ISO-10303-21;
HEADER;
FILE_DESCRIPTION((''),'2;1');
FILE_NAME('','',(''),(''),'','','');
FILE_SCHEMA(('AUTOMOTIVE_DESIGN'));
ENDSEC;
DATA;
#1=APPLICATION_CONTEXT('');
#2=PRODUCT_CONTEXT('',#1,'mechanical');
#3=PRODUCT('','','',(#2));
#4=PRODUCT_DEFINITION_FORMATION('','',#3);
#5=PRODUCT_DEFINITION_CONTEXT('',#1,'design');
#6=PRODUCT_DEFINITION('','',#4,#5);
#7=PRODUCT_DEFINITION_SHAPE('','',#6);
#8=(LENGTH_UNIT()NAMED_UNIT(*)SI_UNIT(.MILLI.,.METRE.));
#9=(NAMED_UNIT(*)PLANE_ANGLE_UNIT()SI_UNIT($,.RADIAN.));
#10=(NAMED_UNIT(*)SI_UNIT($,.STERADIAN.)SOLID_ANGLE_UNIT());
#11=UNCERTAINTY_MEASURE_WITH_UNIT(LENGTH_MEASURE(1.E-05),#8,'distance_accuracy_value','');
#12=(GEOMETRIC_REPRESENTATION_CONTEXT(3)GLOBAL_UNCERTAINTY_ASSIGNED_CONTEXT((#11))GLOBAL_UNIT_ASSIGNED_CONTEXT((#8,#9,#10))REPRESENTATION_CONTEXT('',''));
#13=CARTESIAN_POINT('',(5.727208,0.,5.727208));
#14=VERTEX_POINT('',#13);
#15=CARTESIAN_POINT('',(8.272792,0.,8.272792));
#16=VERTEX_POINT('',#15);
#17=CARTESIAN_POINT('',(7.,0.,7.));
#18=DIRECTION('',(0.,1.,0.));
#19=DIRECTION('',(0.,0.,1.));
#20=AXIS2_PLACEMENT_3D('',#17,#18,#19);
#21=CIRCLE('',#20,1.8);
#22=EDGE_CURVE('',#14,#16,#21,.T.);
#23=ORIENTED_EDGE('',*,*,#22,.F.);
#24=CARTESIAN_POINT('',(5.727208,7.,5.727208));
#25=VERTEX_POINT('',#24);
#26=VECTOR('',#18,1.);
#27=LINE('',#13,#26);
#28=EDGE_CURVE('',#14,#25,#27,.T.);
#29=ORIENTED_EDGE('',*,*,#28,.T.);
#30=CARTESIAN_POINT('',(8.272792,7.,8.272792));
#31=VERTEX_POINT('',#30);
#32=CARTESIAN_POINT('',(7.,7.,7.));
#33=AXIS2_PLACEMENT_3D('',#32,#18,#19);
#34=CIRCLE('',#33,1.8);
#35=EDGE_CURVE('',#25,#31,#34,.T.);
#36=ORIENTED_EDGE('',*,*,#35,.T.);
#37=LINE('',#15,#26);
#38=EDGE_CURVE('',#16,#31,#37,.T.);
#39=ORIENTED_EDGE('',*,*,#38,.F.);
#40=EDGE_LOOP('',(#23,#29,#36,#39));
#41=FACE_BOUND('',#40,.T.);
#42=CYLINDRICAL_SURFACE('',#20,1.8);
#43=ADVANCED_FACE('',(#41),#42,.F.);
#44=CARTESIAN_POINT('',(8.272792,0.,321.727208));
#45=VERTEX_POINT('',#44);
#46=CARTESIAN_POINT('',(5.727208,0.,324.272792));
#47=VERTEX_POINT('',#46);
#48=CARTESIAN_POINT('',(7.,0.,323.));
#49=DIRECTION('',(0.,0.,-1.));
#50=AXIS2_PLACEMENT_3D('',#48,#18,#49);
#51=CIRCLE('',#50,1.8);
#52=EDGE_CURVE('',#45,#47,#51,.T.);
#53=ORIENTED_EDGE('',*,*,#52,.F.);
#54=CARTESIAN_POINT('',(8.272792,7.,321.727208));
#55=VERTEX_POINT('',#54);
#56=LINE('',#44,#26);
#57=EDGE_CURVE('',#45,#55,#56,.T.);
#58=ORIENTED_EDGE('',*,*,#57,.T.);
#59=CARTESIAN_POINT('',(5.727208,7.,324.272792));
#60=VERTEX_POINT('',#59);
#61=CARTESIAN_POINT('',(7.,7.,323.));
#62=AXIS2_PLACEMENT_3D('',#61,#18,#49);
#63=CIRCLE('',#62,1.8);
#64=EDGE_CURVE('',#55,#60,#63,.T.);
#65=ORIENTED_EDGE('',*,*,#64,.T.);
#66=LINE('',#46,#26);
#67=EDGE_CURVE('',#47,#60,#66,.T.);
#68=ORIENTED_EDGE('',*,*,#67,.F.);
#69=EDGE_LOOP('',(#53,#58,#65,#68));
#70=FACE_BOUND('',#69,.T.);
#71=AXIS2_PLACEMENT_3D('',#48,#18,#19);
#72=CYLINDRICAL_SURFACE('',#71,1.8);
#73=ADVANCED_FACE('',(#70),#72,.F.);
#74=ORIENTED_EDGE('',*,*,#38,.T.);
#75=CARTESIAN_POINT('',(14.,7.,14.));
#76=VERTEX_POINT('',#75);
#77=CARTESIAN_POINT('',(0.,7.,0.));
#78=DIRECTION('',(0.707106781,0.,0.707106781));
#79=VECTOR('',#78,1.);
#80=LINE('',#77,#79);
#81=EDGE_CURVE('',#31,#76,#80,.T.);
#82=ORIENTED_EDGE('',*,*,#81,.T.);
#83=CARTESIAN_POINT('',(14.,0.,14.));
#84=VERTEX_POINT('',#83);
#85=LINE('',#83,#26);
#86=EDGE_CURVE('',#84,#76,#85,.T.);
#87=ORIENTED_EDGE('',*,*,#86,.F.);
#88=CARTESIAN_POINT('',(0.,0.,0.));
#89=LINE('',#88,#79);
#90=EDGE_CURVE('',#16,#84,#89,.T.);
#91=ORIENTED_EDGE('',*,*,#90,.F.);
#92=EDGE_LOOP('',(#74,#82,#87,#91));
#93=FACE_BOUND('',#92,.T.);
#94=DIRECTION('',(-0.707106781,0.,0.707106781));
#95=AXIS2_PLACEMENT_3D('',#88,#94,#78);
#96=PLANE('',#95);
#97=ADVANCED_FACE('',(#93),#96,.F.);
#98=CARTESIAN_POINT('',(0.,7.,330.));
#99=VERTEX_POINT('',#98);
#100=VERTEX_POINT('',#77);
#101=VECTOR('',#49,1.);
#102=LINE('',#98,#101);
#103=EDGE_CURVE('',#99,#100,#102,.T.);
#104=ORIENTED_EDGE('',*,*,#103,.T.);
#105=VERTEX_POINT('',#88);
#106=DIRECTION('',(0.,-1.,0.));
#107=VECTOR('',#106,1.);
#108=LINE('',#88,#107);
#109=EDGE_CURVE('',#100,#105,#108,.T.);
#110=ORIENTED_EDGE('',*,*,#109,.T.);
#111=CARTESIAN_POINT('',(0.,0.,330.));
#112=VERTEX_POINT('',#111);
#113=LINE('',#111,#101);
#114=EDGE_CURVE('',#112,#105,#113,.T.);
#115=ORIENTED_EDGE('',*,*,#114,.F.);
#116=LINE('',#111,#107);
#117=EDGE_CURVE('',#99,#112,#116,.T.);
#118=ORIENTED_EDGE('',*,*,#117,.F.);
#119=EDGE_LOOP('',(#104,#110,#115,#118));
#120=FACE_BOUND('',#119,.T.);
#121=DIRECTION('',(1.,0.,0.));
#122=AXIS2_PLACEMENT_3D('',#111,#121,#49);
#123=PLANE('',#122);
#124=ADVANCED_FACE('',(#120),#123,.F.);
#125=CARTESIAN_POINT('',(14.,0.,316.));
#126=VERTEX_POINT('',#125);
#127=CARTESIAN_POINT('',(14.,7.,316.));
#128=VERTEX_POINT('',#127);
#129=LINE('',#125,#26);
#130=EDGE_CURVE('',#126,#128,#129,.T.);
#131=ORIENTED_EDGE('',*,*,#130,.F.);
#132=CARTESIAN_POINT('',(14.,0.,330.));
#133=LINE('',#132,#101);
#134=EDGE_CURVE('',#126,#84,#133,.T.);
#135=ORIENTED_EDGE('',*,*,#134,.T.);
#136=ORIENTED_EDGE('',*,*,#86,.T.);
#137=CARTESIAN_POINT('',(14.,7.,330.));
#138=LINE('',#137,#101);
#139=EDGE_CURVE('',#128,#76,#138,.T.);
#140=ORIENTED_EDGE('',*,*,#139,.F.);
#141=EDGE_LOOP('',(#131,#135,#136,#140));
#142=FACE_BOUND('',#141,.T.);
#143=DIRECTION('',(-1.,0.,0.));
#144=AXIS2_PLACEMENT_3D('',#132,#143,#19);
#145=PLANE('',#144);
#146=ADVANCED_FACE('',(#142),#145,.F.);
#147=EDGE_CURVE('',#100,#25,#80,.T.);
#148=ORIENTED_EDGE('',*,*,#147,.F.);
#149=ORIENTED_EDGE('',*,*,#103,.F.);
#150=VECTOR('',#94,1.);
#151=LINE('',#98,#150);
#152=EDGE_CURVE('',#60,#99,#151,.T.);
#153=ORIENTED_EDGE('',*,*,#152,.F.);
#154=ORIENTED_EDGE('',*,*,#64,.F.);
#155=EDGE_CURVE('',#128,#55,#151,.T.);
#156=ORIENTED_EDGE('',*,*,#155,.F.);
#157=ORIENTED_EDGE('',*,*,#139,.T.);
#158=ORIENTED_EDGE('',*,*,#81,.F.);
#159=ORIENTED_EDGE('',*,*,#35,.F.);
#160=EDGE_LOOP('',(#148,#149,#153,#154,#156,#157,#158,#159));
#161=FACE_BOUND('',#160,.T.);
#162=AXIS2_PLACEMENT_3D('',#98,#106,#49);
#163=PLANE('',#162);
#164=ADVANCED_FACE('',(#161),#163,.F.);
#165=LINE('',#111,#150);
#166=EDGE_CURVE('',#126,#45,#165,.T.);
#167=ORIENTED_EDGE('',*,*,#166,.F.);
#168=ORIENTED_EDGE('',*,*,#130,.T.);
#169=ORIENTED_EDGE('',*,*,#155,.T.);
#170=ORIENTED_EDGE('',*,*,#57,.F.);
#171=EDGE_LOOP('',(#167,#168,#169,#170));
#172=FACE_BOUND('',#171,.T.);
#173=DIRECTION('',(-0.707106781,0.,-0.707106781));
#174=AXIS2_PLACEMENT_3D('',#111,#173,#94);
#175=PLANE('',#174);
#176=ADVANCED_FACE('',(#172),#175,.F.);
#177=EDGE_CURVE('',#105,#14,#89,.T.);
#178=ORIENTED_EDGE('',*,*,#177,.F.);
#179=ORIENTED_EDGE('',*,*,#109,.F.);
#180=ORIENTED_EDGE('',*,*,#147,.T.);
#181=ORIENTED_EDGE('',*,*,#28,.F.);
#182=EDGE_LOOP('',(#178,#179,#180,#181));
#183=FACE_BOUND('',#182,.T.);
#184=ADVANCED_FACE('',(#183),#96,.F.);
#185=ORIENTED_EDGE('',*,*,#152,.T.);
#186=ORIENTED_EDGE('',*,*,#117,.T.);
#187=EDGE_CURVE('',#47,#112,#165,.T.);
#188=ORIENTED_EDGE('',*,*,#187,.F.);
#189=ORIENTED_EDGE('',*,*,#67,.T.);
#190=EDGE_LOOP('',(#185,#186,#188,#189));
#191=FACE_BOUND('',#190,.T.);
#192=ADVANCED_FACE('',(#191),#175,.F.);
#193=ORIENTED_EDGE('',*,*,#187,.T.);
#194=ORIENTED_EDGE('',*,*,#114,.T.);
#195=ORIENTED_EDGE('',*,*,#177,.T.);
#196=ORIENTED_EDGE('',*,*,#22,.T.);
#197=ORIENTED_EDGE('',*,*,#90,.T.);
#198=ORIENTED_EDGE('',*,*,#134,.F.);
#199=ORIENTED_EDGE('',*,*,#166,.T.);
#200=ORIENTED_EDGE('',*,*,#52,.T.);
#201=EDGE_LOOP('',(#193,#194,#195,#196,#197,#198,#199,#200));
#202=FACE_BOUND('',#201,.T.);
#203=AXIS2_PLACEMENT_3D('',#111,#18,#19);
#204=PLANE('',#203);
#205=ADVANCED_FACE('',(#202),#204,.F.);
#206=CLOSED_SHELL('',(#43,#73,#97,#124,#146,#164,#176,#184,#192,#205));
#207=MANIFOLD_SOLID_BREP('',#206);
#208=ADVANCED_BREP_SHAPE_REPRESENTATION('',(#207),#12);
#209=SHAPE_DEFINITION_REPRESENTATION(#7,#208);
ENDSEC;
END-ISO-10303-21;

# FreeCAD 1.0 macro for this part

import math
import FreeCAD as App
import Part
import Sketcher


def add_polygon(sketch, points):
    """Adds a closed chain of lines whose ends are joined by coincident constraints."""
    first, n = sketch.GeometryCount, len(points)
    for a, b in zip(points, points[1:] + points[:1]):
        sketch.addGeometry(Part.LineSegment(App.Vector(*a, 0), App.Vector(*b, 0)), False)
    for i in range(n):
        sketch.addConstraint(Sketcher.Constraint("Coincident", first + i, 2, first + (i + 1) % n, 1))

doc = App.newDocument("Part")
body = doc.addObject("PartDesign::Body", "Body")

sketch1 = body.newObject("Sketcher::SketchObject", "Sketch")
sketch1.AttachmentSupport = (doc.getObject("XY_Plane"), [""])
sketch1.MapMode = "FlatFace"
add_polygon(sketch1, [(0, 7), (0, 0), (14, 0), (14, 7)])
sketch1.addConstraint(Sketcher.Constraint("Vertical", 0))
sketch1.addConstraint(Sketcher.Constraint("Horizontal", 1))
sketch1.addConstraint(Sketcher.Constraint("Vertical", 2))
sketch1.addConstraint(Sketcher.Constraint("Horizontal", 3))
sketch1.addConstraint(Sketcher.Constraint("Coincident", 0, 2, -1, 1))
sketch1.addConstraint(Sketcher.Constraint("DistanceX", 1, 1, 1, 2, 14.0))
sketch1.addConstraint(Sketcher.Constraint("DistanceY", 0, 2, 0, 1, 7.0))
pad1 = body.newObject("PartDesign::Pad", "Pad")
pad1.Profile = sketch1
pad1.Length = 330

sketch2 = body.newObject("Sketcher::SketchObject", "Sketch001")
sketch2.AttachmentSupport = (doc.getObject("XZ_Plane"), [""])
sketch2.MapMode = "FlatFace"
sketch2.AttachmentOffset = App.Placement(App.Vector(0, 0, -7), App.Rotation())
add_polygon(sketch2, [(0, 0), (14, 14), (14, 0)])
add_polygon(sketch2, [(0, 330), (14, 330), (14, 316)])
sketch2.addConstraint(Sketcher.Constraint("Vertical", 1))
sketch2.addConstraint(Sketcher.Constraint("Horizontal", 2))
sketch2.addConstraint(Sketcher.Constraint("Horizontal", 3))
sketch2.addConstraint(Sketcher.Constraint("Vertical", 4))
sketch2.addConstraint(Sketcher.Constraint("Coincident", 2, 2, -1, 1))
sketch2.addConstraint(Sketcher.Constraint("PointOnObject", 5, 2, -2))
sketch2.addConstraint(Sketcher.Constraint("Perpendicular", 0, 5))
sketch2.addConstraint(Sketcher.Constraint("Vertical", 1, 2, 3, 2))
sketch2.addConstraint(Sketcher.Constraint("Equal", 3, 1))
sketch2.addConstraint(Sketcher.Constraint("DistanceX", 2, 2, 2, 1, 14.0))
sketch2.addConstraint(Sketcher.Constraint("DistanceY", -1, 1, 3, 2, 330.0))
pocket1 = body.newObject("PartDesign::Pocket", "Pocket")
pocket1.Profile = sketch2
pocket1.Type = "ThroughAll"
pocket1.Reversed = True

sketch3 = body.newObject("Sketcher::SketchObject", "Sketch002")
sketch3.AttachmentSupport = (doc.getObject("XZ_Plane"), [""])
sketch3.MapMode = "FlatFace"
sketch3.AttachmentOffset = App.Placement(App.Vector(0, 0, -7), App.Rotation())
sketch3.addGeometry(Part.LineSegment(App.Vector(8.3, 8.3, 0), App.Vector(5.7, 5.7, 0)), False)
sketch3.addGeometry(Part.ArcOfCircle(Part.Circle(App.Vector(7, 7, 0), App.Vector(0, 0, 1), 1.8), math.radians(45), math.radians(225)), False)
sketch3.addGeometry(Part.LineSegment(App.Vector(5.7, 324.3, 0), App.Vector(8.3, 321.7, 0)), False)
sketch3.addGeometry(Part.ArcOfCircle(Part.Circle(App.Vector(7, 323, 0), App.Vector(0, 0, 1), 1.8), math.radians(135), math.radians(315)), False)
sketch3.addConstraint(Sketcher.Constraint("Coincident", 0, 1, 1, 1))
sketch3.addConstraint(Sketcher.Constraint("Coincident", 1, 2, 0, 2))
sketch3.addConstraint(Sketcher.Constraint("Coincident", 2, 1, 3, 1))
sketch3.addConstraint(Sketcher.Constraint("Coincident", 3, 2, 2, 2))
sketch3.addConstraint(Sketcher.Constraint("Equal", 1, 3))
sketch3.addConstraint(Sketcher.Constraint("Perpendicular", 0, 2))
sketch3.addConstraint(Sketcher.Constraint("Vertical", 1, 3, 3, 3))
sketch3.addConstraint(Sketcher.Constraint("Vertical", 1, 2, 2, 1))
sketch3.addConstraint(Sketcher.Constraint("Vertical", 0, 1, 3, 2))
sketch3.addConstraint(Sketcher.Constraint("Radius", 1, 1.8))
sketch3.addConstraint(Sketcher.Constraint("DistanceX", -1, 1, 1, 3, 7.0))
sketch3.addConstraint(Sketcher.Constraint("DistanceY", -1, 1, 1, 3, 7.0))
sketch3.addConstraint(Sketcher.Constraint("DistanceY", -1, 1, 3, 3, 323.0))
sketch3.addConstraint(Sketcher.Constraint("DistanceY", 0, 1, 2, 1, 316.0))
pocket2 = body.newObject("PartDesign::Pocket", "Pocket001")
pocket2.Profile = sketch3
pocket2.Type = "ThroughAll"
pocket2.Reversed = True

doc.recompute()
